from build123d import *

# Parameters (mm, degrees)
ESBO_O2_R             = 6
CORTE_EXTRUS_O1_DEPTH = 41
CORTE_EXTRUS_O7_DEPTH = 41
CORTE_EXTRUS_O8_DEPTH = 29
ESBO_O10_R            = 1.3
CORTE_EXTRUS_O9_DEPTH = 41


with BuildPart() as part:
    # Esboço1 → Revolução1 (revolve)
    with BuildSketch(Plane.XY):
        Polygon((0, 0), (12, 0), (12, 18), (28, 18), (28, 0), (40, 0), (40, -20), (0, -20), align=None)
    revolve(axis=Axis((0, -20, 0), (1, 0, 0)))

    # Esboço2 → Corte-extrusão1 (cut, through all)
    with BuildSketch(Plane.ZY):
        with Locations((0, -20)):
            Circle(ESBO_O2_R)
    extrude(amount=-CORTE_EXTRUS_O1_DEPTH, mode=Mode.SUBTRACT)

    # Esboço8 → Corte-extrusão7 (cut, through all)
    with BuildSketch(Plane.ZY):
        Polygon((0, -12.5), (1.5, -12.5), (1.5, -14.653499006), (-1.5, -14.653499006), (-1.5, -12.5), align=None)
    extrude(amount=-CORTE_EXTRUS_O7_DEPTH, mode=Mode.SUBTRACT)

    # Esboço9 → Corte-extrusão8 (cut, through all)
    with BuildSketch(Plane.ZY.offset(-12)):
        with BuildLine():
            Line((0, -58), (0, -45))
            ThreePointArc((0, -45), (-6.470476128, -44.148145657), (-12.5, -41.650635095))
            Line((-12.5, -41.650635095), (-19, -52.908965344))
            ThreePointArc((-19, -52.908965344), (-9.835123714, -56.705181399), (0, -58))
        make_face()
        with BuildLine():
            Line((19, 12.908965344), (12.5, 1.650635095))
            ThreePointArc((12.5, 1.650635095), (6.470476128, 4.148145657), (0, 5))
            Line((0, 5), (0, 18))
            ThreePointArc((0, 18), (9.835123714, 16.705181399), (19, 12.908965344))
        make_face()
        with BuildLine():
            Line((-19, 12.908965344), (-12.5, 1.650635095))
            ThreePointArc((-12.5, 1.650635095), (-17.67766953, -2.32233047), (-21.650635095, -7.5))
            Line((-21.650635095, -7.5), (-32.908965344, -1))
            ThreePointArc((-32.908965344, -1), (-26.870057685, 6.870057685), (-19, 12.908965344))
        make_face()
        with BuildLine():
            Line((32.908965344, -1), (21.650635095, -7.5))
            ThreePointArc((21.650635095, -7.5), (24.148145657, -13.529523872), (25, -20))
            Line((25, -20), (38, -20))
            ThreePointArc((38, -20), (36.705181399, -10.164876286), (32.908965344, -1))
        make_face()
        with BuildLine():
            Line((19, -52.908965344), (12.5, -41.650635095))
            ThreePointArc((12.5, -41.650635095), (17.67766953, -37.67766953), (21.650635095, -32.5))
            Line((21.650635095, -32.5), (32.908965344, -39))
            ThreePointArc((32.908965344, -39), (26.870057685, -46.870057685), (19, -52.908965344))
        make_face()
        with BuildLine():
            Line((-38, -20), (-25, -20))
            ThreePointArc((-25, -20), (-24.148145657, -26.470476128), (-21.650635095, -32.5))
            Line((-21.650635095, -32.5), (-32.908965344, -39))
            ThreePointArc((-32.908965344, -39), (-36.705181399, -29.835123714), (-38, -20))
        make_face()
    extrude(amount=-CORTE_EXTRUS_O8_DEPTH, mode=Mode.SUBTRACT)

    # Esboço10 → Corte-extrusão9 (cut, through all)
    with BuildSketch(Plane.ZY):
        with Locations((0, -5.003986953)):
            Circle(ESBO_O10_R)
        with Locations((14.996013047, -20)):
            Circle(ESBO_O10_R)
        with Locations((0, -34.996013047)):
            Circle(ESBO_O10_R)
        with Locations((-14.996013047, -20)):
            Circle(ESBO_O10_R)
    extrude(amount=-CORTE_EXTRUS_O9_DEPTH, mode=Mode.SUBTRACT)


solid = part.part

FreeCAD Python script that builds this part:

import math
import FreeCAD as App
import Part
import Sketcher
Q = App.Units.Quantity


def add_polygon(sketch, points):
    """Adds a closed chain of lines whose ends are joined by coincident constraints."""
    first, n = sketch.GeometryCount, len(points)
    for a, b in zip(points, points[1:] + points[:1]):
        sketch.addGeometry(Part.LineSegment(App.Vector(*a, 0), App.Vector(*b, 0)), False)
    for i in range(n):
        sketch.addConstraint(Sketcher.Constraint("Coincident", first + i, 2, first + (i + 1) % n, 1))

doc = App.newDocument("Part")
body = doc.addObject("PartDesign::Body", "Body")

sketch1 = body.newObject("Sketcher::SketchObject", "Sketch")
sketch1.AttachmentSupport = (doc.getObject("XY_Plane"), [""])
sketch1.MapMode = "FlatFace"
add_polygon(sketch1, [(12, 0), (0, 0), (0, -20), (40, -20), (40, 0), (28, 0), (28, 18), (12, 18)])
sketch1.addGeometry(Part.LineSegment(App.Vector(0, -20, 0), App.Vector(40, -20, 0)), True)
sketch1.addConstraint(Sketcher.Constraint("Horizontal", 0))
sketch1.addConstraint(Sketcher.Constraint("Vertical", 1))
sketch1.addConstraint(Sketcher.Constraint("Horizontal", 2))
sketch1.addConstraint(Sketcher.Constraint("Vertical", 3))
sketch1.addConstraint(Sketcher.Constraint("Horizontal", 4))
sketch1.addConstraint(Sketcher.Constraint("Vertical", 5))
sketch1.addConstraint(Sketcher.Constraint("Horizontal", 6))
sketch1.addConstraint(Sketcher.Constraint("Vertical", 7))
sketch1.addConstraint(Sketcher.Constraint("Horizontal", 8))
sketch1.addConstraint(Sketcher.Constraint("Coincident", 0, 2, -1, 1))
sketch1.addConstraint(Sketcher.Constraint("Coincident", 8, 1, 1, 2))
sketch1.addConstraint(Sketcher.Constraint("PointOnObject", 3, 2, -1))
sketch1.addConstraint(Sketcher.Constraint("Vertical", 3, 2, 8, 2))
sketch1.addConstraint(Sketcher.Constraint("Equal", 0, 4))
sketch1.addConstraint(Sketcher.Constraint("DistanceX", 0, 2, 0, 1, 12.0))
sketch1.addConstraint(Sketcher.Constraint("DistanceX", 2, 1, 2, 2, 40.0))
sketch1.addConstraint(Sketcher.Constraint("DistanceY", 1, 2, 1, 1, 20.0))
sketch1.addConstraint(Sketcher.Constraint("DistanceY", 5, 1, 5, 2, 18.0))
revolution = body.newObject("PartDesign::Revolution", "Revolution")
revolution.Profile = sketch1
revolution.ReferenceAxis = (sketch1, ["Axis0"])
revolution.Angle = 360

sketch2 = body.newObject("Sketcher::SketchObject", "Sketch001")
sketch2.AttachmentSupport = (doc.getObject("YZ_Plane"), [""])
sketch2.MapMode = "FlatFace"
sketch2.addGeometry(Part.Circle(App.Vector(-20, 0, 0), App.Vector(0, 0, 1), 6), False)
sketch2.addConstraint(Sketcher.Constraint("PointOnObject", 0, 3, -1))
sketch2.addConstraint(Sketcher.Constraint("Diameter", 0, 12.0))
sketch2.addConstraint(Sketcher.Constraint("DistanceX", 0, 3, -1, 1, 20.0))
pocket1 = body.newObject("PartDesign::Pocket", "Pocket")
pocket1.Profile = sketch2
pocket1.Type = "ThroughAll"
pocket1.Reversed = True

sketch3 = body.newObject("Sketcher::SketchObject", "Sketch002")
sketch3.AttachmentSupport = (doc.getObject("YZ_Plane"), [""])
sketch3.MapMode = "FlatFace"
add_polygon(sketch3, [(-12.5, 1.5), (-12.5, -1.5), (-14.7, -1.5), (-14.7, 1.5)])
sketch3.addConstraint(Sketcher.Constraint("Vertical", 0))
sketch3.addConstraint(Sketcher.Constraint("Horizontal", 1))
sketch3.addConstraint(Sketcher.Constraint("Vertical", 2))
sketch3.addConstraint(Sketcher.Constraint("Horizontal", 3))
sketch3.addConstraint(Sketcher.Constraint("DistanceY", 0, 2, 0, 1, 3.0))
sketch3.addConstraint(Sketcher.Constraint("DistanceX", 0, 2, -1, 1, 12.5))
sketch3.addConstraint(Sketcher.Constraint("DistanceY", 0, 2, -1, 1, 1.5))
sketch3.addConstraint(Sketcher.Constraint("DistanceX", 1, 2, 1, 1, 2.153499))
pocket2 = body.newObject("PartDesign::Pocket", "Pocket001")
pocket2.Profile = sketch3
pocket2.Type = "ThroughAll"
pocket2.Reversed = True

sketch4 = body.newObject("Sketcher::SketchObject", "Sketch003")
sketch4.AttachmentSupport = (doc.getObject("YZ_Plane"), [""])
sketch4.MapMode = "FlatFace"
sketch4.AttachmentOffset = App.Placement(App.Vector(0, 0, 12), App.Rotation())
sketch4.addGeometry(Part.LineSegment(App.Vector(-58, 0, 0), App.Vector(-45, 0, 0)), False)
sketch4.addGeometry(Part.ArcOfCircle(Part.Circle(App.Vector(-20, 0, 0), App.Vector(0, 0, 1), 25), math.radians(-180), math.radians(-150)), False)
sketch4.addGeometry(Part.LineSegment(App.Vector(-42, -12, 0), App.Vector(-53, -19, 0)), False)
sketch4.addGeometry(Part.ArcOfCircle(Part.Circle(App.Vector(-20, 0, 0), App.Vector(0, 0, 1), 38), math.radians(180), math.radians(210)), False)
sketch4.addGeometry(Part.LineSegment(App.Vector(2, 12, 0), App.Vector(13, 19, 0)), False)
sketch4.addGeometry(Part.ArcOfCircle(Part.Circle(App.Vector(-20, 0, 0), App.Vector(0, 0, 1), 38), math.radians(0), math.radians(30)), False)
sketch4.addGeometry(Part.LineSegment(App.Vector(18, 0, 0), App.Vector(5, 0, 0)), False)
sketch4.addGeometry(Part.ArcOfCircle(Part.Circle(App.Vector(-20, 0, 0), App.Vector(0, 0, 1), 25), math.radians(0), math.radians(30)), False)
sketch4.addGeometry(Part.LineSegment(App.Vector(2, -12, 0), App.Vector(13, -19, 0)), False)
sketch4.addGeometry(Part.ArcOfCircle(Part.Circle(App.Vector(-20, 0, 0), App.Vector(0, 0, 1), 38), math.radians(-60), math.radians(-30)), False)
sketch4.addGeometry(Part.LineSegment(App.Vector(-1, -33, 0), App.Vector(-8, -22, 0)), False)
sketch4.addGeometry(Part.ArcOfCircle(Part.Circle(App.Vector(-20, 0, 0), App.Vector(0, 0, 1), 25), math.radians(-60), math.radians(-30)), False)
sketch4.addGeometry(Part.LineSegment(App.Vector(-1, 33, 0), App.Vector(-8, 22, 0)), False)
sketch4.addGeometry(Part.ArcOfCircle(Part.Circle(App.Vector(-20, 0, 0), App.Vector(0, 0, 1), 25), math.radians(60), math.radians(90)), False)
sketch4.addGeometry(Part.LineSegment(App.Vector(-20, 25, 0), App.Vector(-20, 38, 0)), False)
sketch4.addGeometry(Part.ArcOfCircle(Part.Circle(App.Vector(-20, 0, 0), App.Vector(0, 0, 1), 38), math.radians(60), math.radians(90)), False)
sketch4.addGeometry(Part.LineSegment(App.Vector(-42, 12, 0), App.Vector(-53, 19, 0)), False)
sketch4.addGeometry(Part.ArcOfCircle(Part.Circle(App.Vector(-20, 0, 0), App.Vector(0, 0, 1), 38), math.radians(120), math.radians(150)), False)
sketch4.addGeometry(Part.LineSegment(App.Vector(-39, 33, 0), App.Vector(-32, 22, 0)), False)
sketch4.addGeometry(Part.ArcOfCircle(Part.Circle(App.Vector(-20, 0, 0), App.Vector(0, 0, 1), 25), math.radians(120), math.radians(150)), False)
sketch4.addGeometry(Part.LineSegment(App.Vector(-20, -25, 0), App.Vector(-20, -38, 0)), False)
sketch4.addGeometry(Part.ArcOfCircle(Part.Circle(App.Vector(-20, 0, 0), App.Vector(0, 0, 1), 38), math.radians(-120), math.radians(-90)), False)
sketch4.addGeometry(Part.LineSegment(App.Vector(-39, -33, 0), App.Vector(-32, -22, 0)), False)
sketch4.addGeometry(Part.ArcOfCircle(Part.Circle(App.Vector(-20, 0, 0), App.Vector(0, 0, 1), 25), math.radians(-120), math.radians(-90)), False)
sketch4.addConstraint(Sketcher.Constraint("Coincident", 0, 2, 1, 1))
sketch4.addConstraint(Sketcher.Constraint("Coincident", 1, 2, 2, 1))
sketch4.addConstraint(Sketcher.Constraint("Coincident", 2, 2, 3, 2))
sketch4.addConstraint(Sketcher.Constraint("Coincident", 3, 1, 0, 1))
sketch4.addConstraint(Sketcher.Constraint("Coincident", 4, 2, 5, 2))
sketch4.addConstraint(Sketcher.Constraint("Coincident", 5, 1, 6, 1))
sketch4.addConstraint(Sketcher.Constraint("Coincident", 6, 2, 7, 1))
sketch4.addConstraint(Sketcher.Constraint("Coincident", 7, 2, 4, 1))
sketch4.addConstraint(Sketcher.Constraint("Coincident", 8, 2, 9, 2))
sketch4.addConstraint(Sketcher.Constraint("Coincident", 9, 1, 10, 1))
sketch4.addConstraint(Sketcher.Constraint("Coincident", 10, 2, 11, 1))
sketch4.addConstraint(Sketcher.Constraint("Coincident", 11, 2, 8, 1))
sketch4.addConstraint(Sketcher.Constraint("Coincident", 12, 2, 13, 1))
sketch4.addConstraint(Sketcher.Constraint("Coincident", 13, 2, 14, 1))
sketch4.addConstraint(Sketcher.Constraint("Coincident", 14, 2, 15, 2))
sketch4.addConstraint(Sketcher.Constraint("Coincident", 15, 1, 12, 1))
sketch4.addConstraint(Sketcher.Constraint("Coincident", 16, 2, 17, 2))
sketch4.addConstraint(Sketcher.Constraint("Coincident", 17, 1, 18, 1))
sketch4.addConstraint(Sketcher.Constraint("Coincident", 18, 2, 19, 1))
sketch4.addConstraint(Sketcher.Constraint("Coincident", 19, 2, 16, 1))
sketch4.addConstraint(Sketcher.Constraint("Coincident", 20, 2, 21, 2))
sketch4.addConstraint(Sketcher.Constraint("Coincident", 21, 1, 22, 1))
sketch4.addConstraint(Sketcher.Constraint("Coincident", 22, 2, 23, 1))
sketch4.addConstraint(Sketcher.Constraint("Coincident", 23, 2, 20, 1))
sketch4.addConstraint(Sketcher.Constraint("Horizontal", 0))
sketch4.addConstraint(Sketcher.Constraint("Horizontal", 6))
sketch4.addConstraint(Sketcher.Constraint("Vertical", 14))
sketch4.addConstraint(Sketcher.Constraint("Vertical", 20))
sketch4.addConstraint(Sketcher.Constraint("Coincident", 3, 3, 1, 3))
sketch4.addConstraint(Sketcher.Constraint("Coincident", 5, 3, 1, 3))
sketch4.addConstraint(Sketcher.Constraint("Coincident", 7, 3, 1, 3))
sketch4.addConstraint(Sketcher.Constraint("Coincident", 9, 3, 1, 3))
sketch4.addConstraint(Sketcher.Constraint("Coincident", 11, 3, 1, 3))
sketch4.addConstraint(Sketcher.Constraint("Coincident", 13, 3, 1, 3))
sketch4.addConstraint(Sketcher.Constraint("Coincident", 15, 3, 1, 3))
sketch4.addConstraint(Sketcher.Constraint("Coincident", 17, 3, 1, 3))
sketch4.addConstraint(Sketcher.Constraint("Coincident", 19, 3, 1, 3))
sketch4.addConstraint(Sketcher.Constraint("Coincident", 21, 3, 1, 3))
sketch4.addConstraint(Sketcher.Constraint("Coincident", 23, 3, 1, 3))
sketch4.addConstraint(Sketcher.Constraint("Equal", 3, 5))
sketch4.addConstraint(Sketcher.Constraint("Equal", 1, 7))
sketch4.addConstraint(Sketcher.Constraint("Equal", 5, 9))
sketch4.addConstraint(Sketcher.Constraint("Equal", 7, 11))
sketch4.addConstraint(Sketcher.Constraint("Equal", 11, 13))
sketch4.addConstraint(Sketcher.Constraint("Equal", 9, 15))
sketch4.addConstraint(Sketcher.Constraint("Equal", 15, 17))
sketch4.addConstraint(Sketcher.Constraint("Equal", 13, 19))
sketch4.addConstraint(Sketcher.Constraint("Equal", 17, 21))
sketch4.addConstraint(Sketcher.Constraint("Equal", 19, 23))
sketch4.addConstraint(Sketcher.Constraint("Symmetric", 4, 2, 8, 2, -1))
sketch4.addConstraint(Sketcher.Constraint("PointOnObject", 0, 2, -1))
sketch4.addConstraint(Sketcher.Constraint("PointOnObject", 5, 1, -1))
sketch4.addConstraint(Sketcher.Constraint("Parallel", 2, 4))
sketch4.addConstraint(Sketcher.Constraint("Perpendicular", 4, 10))
sketch4.addConstraint(Sketcher.Constraint("Perpendicular", 8, 12))
sketch4.addConstraint(Sketcher.Constraint("Perpendicular", 12, 16))
sketch4.addConstraint(Sketcher.Constraint("Parallel", 10, 18))
sketch4.addConstraint(Sketcher.Constraint("Perpendicular", 16, 22))
sketch4.addConstraint(Sketcher.Constraint("Horizontal", 2, 2, 8, 2))
sketch4.addConstraint(Sketcher.Constraint("Horizontal", 1, 2, 11, 2))
sketch4.addConstraint(Sketcher.Constraint("Horizontal", 4, 2, 16, 2))
sketch4.addConstraint(Sketcher.Constraint("Horizontal", 15, 1, 17, 1))
sketch4.addConstraint(Sketcher.Constraint("Horizontal", 9, 1, 21, 1))
sketch4.addConstraint(Sketcher.Constraint("Vertical", 10, 2, 12, 2))
sketch4.addConstraint(Sketcher.Constraint("Vertical", 23, 3, 13, 2))
sketch4.addConstraint(Sketcher.Constraint("Vertical", 14, 2, 20, 2))
sketch4.addConstraint(Sketcher.Constraint("Radius", 1, 25.0))
sketch4.addConstraint(Sketcher.Constraint("Radius", 3, 38.0))
sketch4.addConstraint(Sketcher.Constraint("Angle", 2, Q("-150 deg")))
sketch4.addConstraint(Sketcher.Constraint("DistanceX", 1, 3, -1, 1, 20.0))
sketch4.addConstraint(Sketcher.Constraint("DistanceY", 2, 2, -1, 1, 19.0))
sketch4.addConstraint(Sketcher.Constraint("DistanceX", 9, 1, -1, 1, 1.0))
pocket3 = body.newObject("PartDesign::Pocket", "Pocket002")
pocket3.Profile = sketch4
pocket3.Type = "ThroughAll"
pocket3.Reversed = True

sketch5 = body.newObject("Sketcher::SketchObject", "Sketch004")
sketch5.AttachmentSupport = (doc.getObject("YZ_Plane"), [""])
sketch5.MapMode = "FlatFace"
sketch5.addGeometry(Part.Circle(App.Vector(-5, 0, 0), App.Vector(0, 0, 1), 1.3), False)
sketch5.addGeometry(Part.Circle(App.Vector(-20, 15, 0), App.Vector(0, 0, 1), 1.3), False)
sketch5.addGeometry(Part.Circle(App.Vector(-35, 0, 0), App.Vector(0, 0, 1), 1.3), False)
sketch5.addGeometry(Part.Circle(App.Vector(-20, -15, 0), App.Vector(0, 0, 1), 1.3), False)
sketch5.addConstraint(Sketcher.Constraint("Equal", 0, 1))
sketch5.addConstraint(Sketcher.Constraint("Equal", 1, 2))
sketch5.addConstraint(Sketcher.Constraint("Equal", 2, 3))
sketch5.addConstraint(Sketcher.Constraint("Symmetric", 1, 3, 3, 3, -1))
sketch5.addConstraint(Sketcher.Constraint("PointOnObject", 0, 3, -1))
sketch5.addConstraint(Sketcher.Constraint("PointOnObject", 2, 3, -1))
sketch5.addConstraint(Sketcher.Constraint("Diameter", 0, 2.6))
sketch5.addConstraint(Sketcher.Constraint("DistanceX", 1, 3, -1, 1, 20.0))
sketch5.addConstraint(Sketcher.Constraint("DistanceX", 0, 3, -1, 1, 5.003987))
sketch5.addConstraint(Sketcher.Constraint("DistanceY", -1, 1, 1, 3, 14.996013))
sketch5.addConstraint(Sketcher.Constraint("DistanceX", 2, 3, -1, 1, 34.996013))
pocket4 = body.newObject("PartDesign::Pocket", "Pocket003")
pocket4.Profile = sketch5
pocket4.Type = "ThroughAll"
pocket4.Reversed = True

doc.recompute()
